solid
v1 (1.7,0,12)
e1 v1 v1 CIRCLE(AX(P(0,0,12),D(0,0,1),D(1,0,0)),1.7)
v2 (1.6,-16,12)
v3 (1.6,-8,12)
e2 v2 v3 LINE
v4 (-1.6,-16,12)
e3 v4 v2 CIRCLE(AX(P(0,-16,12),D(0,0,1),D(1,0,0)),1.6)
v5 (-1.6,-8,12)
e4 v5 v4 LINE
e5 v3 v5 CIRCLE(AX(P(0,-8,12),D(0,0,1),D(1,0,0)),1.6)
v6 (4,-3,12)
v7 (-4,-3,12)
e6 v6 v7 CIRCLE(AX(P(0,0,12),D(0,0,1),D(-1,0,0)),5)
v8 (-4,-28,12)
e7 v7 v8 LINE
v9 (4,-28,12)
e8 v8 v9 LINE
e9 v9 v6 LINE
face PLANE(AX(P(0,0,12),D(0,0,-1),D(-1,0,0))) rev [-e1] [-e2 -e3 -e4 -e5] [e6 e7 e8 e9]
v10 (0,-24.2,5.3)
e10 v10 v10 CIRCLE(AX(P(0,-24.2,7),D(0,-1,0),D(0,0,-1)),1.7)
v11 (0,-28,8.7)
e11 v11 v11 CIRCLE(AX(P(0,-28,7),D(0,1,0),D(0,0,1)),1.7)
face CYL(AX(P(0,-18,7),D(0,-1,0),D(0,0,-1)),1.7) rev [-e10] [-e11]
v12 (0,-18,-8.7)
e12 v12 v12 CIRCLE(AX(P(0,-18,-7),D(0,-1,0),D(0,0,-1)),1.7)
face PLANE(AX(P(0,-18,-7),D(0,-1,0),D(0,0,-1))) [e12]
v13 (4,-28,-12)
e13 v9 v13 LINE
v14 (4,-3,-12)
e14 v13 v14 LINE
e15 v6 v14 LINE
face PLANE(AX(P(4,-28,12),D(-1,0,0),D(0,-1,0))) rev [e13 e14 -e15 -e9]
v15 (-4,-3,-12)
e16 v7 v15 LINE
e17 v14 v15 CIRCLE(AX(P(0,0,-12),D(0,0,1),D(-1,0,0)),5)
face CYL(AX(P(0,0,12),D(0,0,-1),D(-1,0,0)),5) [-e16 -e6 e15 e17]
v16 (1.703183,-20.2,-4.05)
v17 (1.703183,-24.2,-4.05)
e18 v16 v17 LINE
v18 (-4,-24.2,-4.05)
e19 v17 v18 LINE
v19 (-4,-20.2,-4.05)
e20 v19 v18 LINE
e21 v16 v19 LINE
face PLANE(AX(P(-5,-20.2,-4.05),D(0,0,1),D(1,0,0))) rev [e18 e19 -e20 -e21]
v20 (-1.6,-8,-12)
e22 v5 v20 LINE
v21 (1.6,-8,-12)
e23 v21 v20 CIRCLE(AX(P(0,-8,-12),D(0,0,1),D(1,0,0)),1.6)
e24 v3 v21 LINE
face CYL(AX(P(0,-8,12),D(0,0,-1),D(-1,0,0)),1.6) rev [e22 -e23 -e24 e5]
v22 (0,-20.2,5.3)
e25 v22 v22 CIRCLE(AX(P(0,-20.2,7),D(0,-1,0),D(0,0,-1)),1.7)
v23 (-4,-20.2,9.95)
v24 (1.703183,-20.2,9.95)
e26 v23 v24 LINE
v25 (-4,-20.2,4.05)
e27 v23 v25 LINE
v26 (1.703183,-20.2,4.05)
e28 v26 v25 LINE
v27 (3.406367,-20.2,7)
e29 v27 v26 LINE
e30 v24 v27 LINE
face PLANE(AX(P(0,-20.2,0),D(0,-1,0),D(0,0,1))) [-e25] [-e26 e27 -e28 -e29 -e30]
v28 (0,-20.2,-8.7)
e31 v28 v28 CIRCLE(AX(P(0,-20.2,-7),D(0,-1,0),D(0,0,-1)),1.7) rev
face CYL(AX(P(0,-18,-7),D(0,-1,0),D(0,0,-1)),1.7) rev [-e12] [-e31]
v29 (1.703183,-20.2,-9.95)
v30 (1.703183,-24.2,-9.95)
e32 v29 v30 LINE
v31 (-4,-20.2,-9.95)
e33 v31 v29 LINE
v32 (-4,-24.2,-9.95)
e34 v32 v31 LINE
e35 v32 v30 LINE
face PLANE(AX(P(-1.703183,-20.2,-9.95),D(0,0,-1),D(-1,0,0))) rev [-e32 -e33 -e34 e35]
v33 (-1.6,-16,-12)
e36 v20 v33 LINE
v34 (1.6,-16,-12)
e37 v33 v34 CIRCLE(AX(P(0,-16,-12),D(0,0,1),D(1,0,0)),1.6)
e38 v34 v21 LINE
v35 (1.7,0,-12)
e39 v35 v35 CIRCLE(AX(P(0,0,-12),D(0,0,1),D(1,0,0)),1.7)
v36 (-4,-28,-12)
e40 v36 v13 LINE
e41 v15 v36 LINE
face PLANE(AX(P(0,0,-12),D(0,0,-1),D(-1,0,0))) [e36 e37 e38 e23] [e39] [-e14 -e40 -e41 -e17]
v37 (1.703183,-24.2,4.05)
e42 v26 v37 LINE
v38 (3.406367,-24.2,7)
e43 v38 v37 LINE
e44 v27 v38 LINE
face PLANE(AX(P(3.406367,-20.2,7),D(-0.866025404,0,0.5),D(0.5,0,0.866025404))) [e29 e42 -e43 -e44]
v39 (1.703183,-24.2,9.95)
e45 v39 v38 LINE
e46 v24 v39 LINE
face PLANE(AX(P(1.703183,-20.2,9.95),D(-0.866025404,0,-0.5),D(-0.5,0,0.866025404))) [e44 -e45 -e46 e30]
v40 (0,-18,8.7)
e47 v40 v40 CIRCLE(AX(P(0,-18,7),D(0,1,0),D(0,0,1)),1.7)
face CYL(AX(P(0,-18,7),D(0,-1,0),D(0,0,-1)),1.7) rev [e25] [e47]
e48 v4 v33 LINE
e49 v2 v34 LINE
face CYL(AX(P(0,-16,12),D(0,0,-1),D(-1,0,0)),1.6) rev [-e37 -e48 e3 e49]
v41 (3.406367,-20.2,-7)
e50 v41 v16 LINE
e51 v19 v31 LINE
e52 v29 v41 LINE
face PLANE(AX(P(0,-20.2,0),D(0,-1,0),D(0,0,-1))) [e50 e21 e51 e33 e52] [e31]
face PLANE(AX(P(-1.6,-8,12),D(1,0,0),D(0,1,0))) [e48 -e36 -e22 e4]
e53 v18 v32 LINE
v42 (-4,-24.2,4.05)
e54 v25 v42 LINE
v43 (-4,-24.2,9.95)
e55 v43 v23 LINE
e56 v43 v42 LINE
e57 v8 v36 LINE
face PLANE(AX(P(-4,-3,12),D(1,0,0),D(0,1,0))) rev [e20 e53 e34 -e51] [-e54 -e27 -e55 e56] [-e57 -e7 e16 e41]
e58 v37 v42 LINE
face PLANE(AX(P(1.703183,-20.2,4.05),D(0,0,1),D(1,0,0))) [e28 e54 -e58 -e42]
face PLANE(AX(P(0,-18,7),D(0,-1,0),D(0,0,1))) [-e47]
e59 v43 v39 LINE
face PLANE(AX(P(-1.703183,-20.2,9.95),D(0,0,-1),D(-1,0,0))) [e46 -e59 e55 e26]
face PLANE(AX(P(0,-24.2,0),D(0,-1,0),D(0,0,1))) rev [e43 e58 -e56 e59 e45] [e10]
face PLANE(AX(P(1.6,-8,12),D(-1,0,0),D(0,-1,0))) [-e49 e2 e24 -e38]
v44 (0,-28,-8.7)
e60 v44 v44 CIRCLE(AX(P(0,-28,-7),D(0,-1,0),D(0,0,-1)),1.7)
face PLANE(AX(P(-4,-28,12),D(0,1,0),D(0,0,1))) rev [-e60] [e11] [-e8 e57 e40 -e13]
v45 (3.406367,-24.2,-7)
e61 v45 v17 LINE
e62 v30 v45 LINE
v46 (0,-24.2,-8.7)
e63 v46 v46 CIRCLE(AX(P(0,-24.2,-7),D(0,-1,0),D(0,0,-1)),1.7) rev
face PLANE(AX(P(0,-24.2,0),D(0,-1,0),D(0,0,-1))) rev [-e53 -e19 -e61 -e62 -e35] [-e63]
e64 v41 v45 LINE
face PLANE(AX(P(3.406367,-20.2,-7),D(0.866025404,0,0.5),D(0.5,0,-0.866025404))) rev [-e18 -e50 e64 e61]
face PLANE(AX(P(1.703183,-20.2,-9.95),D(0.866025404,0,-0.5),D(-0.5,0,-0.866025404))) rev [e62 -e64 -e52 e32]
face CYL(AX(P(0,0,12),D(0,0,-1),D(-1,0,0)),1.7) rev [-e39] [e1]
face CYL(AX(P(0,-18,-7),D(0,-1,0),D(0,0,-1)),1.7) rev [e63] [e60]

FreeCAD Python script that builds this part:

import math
import FreeCAD as App
import Part
import Sketcher
from FreeCAD import Vector
Q = App.Units.Quantity


def add_polygon(sketch, points):
    """Adds a closed chain of lines whose ends are joined by coincident constraints."""
    first, n = sketch.GeometryCount, len(points)
    for a, b in zip(points, points[1:] + points[:1]):
        sketch.addGeometry(Part.LineSegment(App.Vector(*a, 0), App.Vector(*b, 0)), False)
    for i in range(n):
        sketch.addConstraint(Sketcher.Constraint("Coincident", first + i, 2, first + (i + 1) % n, 1))

doc = App.newDocument("Part")
params = doc.addObject("Spreadsheet::Sheet", "Params")
for row, (alias, value) in enumerate([
    ("sketch1_radius", "5 mm"),
    ("sketch1_diameter", "3.4 mm"),
    ("sketch1_radius2", "1.6 mm"),
    ("sketch1_width", "8 mm"),
    ("sketch1_height", "25 mm"),
    ("pad1_length", "24 mm"),
    ("sketch2_diameter", "3.4 mm"),
    ("pocket1_length", "10 mm"),
    ("sketch3_height", "5.9 mm"),
    ("pocket2_length", "4 mm"),
], start=1):
    params.set(f"A{row}", alias)
    params.set(f"B{row}", "=" + value)
    params.setAlias(f"B{row}", alias)

body = doc.addObject("PartDesign::Body", "Body")

# Sketch on XY plane
sketch1 = body.newObject("Sketcher::SketchObject", "Sketch")
sketch1.AttachmentSupport = (doc.getObject("XY_Plane"), [""])
sketch1.MapMode = "FlatFace"
sketch1.addGeometry(Part.LineSegment(Vector(-4, -3, 0), Vector(-4, -28, 0)), False)
sketch1.addGeometry(Part.LineSegment(Vector(-4, -28, 0), Vector(4, -28, 0)), False)
sketch1.addGeometry(Part.LineSegment(Vector(4, -28, 0), Vector(4, -3, 0)), False)
sketch1.addGeometry(Part.ArcOfCircle(Part.Circle(Vector(0, 0, 0), Vector(0, 0, 1), 5), math.radians(-37), math.radians(217)), False)
sketch1.addGeometry(Part.ArcOfCircle(Part.Circle(Vector(0, -8, 0), Vector(0, 0, 1), 1.6), math.radians(0), math.radians(180)), False)
sketch1.addGeometry(Part.LineSegment(Vector(1.6, -8, 0), Vector(1.6, -16, 0)), False)
sketch1.addGeometry(Part.ArcOfCircle(Part.Circle(Vector(0, -16, 0), Vector(0, 0, 1), 1.6), math.radians(180), math.radians(360)), False)
sketch1.addGeometry(Part.LineSegment(Vector(-1.6, -16, 0), Vector(-1.6, -8, 0)), False)
sketch1.addGeometry(Part.Circle(Vector(0, 0, 0), Vector(0, 0, 1), 1.7), False)
sketch1.addConstraint(Sketcher.Constraint("Coincident", 0, 2, 1, 1))
sketch1.addConstraint(Sketcher.Constraint("Coincident", 1, 2, 2, 1))
sketch1.addConstraint(Sketcher.Constraint("Coincident", 2, 2, 3, 1))
sketch1.addConstraint(Sketcher.Constraint("Coincident", 3, 2, 0, 1))
sketch1.addConstraint(Sketcher.Constraint("Tangent", 4, 1, 5, 1))
sketch1.addConstraint(Sketcher.Constraint("Tangent", 5, 2, 6, 2))
sketch1.addConstraint(Sketcher.Constraint("Tangent", 6, 1, 7, 1))
sketch1.addConstraint(Sketcher.Constraint("Tangent", 7, 2, 4, 2))
sketch1.addConstraint(Sketcher.Constraint("Vertical", 0))
sketch1.addConstraint(Sketcher.Constraint("Horizontal", 1))
sketch1.addConstraint(Sketcher.Constraint("Vertical", 2))
sketch1.addConstraint(Sketcher.Constraint("Vertical", 5))
sketch1.addConstraint(Sketcher.Constraint("Vertical", 7))
sketch1.addConstraint(Sketcher.Constraint("Coincident", 3, 3, -1, 1))
sketch1.addConstraint(Sketcher.Constraint("Coincident", 8, 3, -1, 1))
sketch1.addConstraint(Sketcher.Constraint("PointOnObject", 4, 3, -2))
sketch1.addConstraint(Sketcher.Constraint("Horizontal", 2, 2, 3, 2))
sketch1.addConstraint(Sketcher.Constraint("Equal", 1, 5))
sketch1.addConstraint(Sketcher.Constraint("Radius", 3, 5.0))
sketch1.addConstraint(Sketcher.Constraint("Diameter", 8, 3.4))
sketch1.addConstraint(Sketcher.Constraint("Radius", 4, 1.6))
sketch1.addConstraint(Sketcher.Constraint("DistanceX", 1, 1, 1, 2, 8.0))
sketch1.addConstraint(Sketcher.Constraint("DistanceY", 0, 2, 0, 1, 25.0))
sketch1.addConstraint(Sketcher.Constraint("DistanceY", 4, 3, -1, 1, 8.0))
sketch1.setExpression("Constraints[18]", "Params.sketch1_radius")
sketch1.setExpression("Constraints[19]", "Params.sketch1_diameter")
sketch1.setExpression("Constraints[20]", "Params.sketch1_radius2")
sketch1.setExpression("Constraints[21]", "Params.sketch1_width")
sketch1.setExpression("Constraints[22]", "Params.sketch1_height")
pad1 = body.newObject("PartDesign::Pad", "Pad")
pad1.Profile = sketch1
pad1.setExpression("Length", "Params.pad1_length")
pad1.Midplane = True

# Sketch on XZ plane
sketch2 = body.newObject("Sketcher::SketchObject", "Sketch001")
sketch2.AttachmentSupport = (doc.getObject("XZ_Plane"), [""])
sketch2.MapMode = "FlatFace"
sketch2.AttachmentOffset = App.Placement(Vector(0, 0, 28), App.Rotation())
sketch2.addGeometry(Part.Circle(Vector(0, -7, 0), Vector(0, 0, 1), 1.7), False)
sketch2.addConstraint(Sketcher.Constraint("PointOnObject", 0, 3, -2))
sketch2.addConstraint(Sketcher.Constraint("Diameter", 0, 3.4))
sketch2.addConstraint(Sketcher.Constraint("DistanceY", 0, 3, -1, 1, 7.0))
sketch2.setExpression("Constraints[1]", "Params.sketch2_diameter")
pocket1 = body.newObject("PartDesign::Pocket", "Pocket")
pocket1.Profile = sketch2
pocket1.setExpression("Length", "Params.pocket1_length")

# Sketch on XZ plane
sketch3 = body.newObject("Sketcher::SketchObject", "Sketch002")
sketch3.AttachmentSupport = (doc.getObject("XZ_Plane"), [""])
sketch3.MapMode = "FlatFace"
sketch3.AttachmentOffset = App.Placement(Vector(0, 0, 24.2), App.Rotation())
add_polygon(sketch3, [(-5, -9.9), (1.7, -9.9), (3.4, -7), (1.7, -4), (-5, -4)])  # lines 0-4
sketch3.addConstraint(Sketcher.Constraint("Horizontal", 0))
sketch3.addConstraint(Sketcher.Constraint("Horizontal", 3))
sketch3.addConstraint(Sketcher.Constraint("Vertical", 4))
sketch3.addConstraint(Sketcher.Constraint("Vertical", 0, 2, 2, 2))
sketch3.addConstraint(Sketcher.Constraint("Equal", 1, 2))
sketch3.addConstraint(Sketcher.Constraint("Angle", 1, Q("60 deg")))
sketch3.addConstraint(Sketcher.Constraint("DistanceY", 4, 2, 4, 1, 5.9))
sketch3.addConstraint(Sketcher.Constraint("DistanceY", 1, 2, -1, 1, 7.0))
sketch3.addConstraint(Sketcher.Constraint("DistanceX", 3, 2, -1, 1, 5.0))
sketch3.addConstraint(Sketcher.Constraint("DistanceX", 0, 1, 0, 2, 6.703183))
sketch3.setExpression("Constraints[11]", "Params.sketch3_height")
pocket2 = body.newObject("PartDesign::Pocket", "Pocket001")
pocket2.Profile = sketch3
pocket2.setExpression("Length", "Params.pocket2_length")
doc.recompute()

mirrored = body.newObject("PartDesign::Mirrored", "Mirrored")
mirrored.Originals = [pocket1, pocket2]
mirrored.MirrorPlane = (doc.getObject("XY_Plane"), [""])
body.Tip = mirrored

doc.recompute()
